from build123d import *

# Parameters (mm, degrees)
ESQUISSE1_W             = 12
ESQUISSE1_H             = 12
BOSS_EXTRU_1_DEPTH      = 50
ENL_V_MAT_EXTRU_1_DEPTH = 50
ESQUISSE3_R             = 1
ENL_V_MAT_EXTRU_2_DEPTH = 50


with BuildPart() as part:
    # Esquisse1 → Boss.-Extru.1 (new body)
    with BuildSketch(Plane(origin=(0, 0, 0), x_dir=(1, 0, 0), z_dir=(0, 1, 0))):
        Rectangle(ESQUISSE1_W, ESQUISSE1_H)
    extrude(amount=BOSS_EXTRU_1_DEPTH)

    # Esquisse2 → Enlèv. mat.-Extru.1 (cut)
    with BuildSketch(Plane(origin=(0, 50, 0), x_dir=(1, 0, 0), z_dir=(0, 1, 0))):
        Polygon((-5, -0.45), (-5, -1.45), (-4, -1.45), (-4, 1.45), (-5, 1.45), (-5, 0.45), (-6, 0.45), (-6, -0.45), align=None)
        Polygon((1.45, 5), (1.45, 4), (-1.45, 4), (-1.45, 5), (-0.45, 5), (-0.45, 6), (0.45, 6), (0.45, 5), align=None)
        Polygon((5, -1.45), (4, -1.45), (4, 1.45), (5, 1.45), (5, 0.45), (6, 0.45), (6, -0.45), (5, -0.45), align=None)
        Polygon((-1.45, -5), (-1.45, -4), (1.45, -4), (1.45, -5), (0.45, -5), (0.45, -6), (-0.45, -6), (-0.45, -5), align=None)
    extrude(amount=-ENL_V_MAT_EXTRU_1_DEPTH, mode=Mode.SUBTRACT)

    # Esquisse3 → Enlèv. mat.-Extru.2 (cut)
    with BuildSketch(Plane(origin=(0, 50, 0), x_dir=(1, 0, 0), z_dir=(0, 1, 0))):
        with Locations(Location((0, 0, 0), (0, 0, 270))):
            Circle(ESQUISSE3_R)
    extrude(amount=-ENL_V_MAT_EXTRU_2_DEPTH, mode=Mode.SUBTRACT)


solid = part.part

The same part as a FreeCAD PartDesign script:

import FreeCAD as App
import Part
import Sketcher

doc = App.newDocument("Part")
body = doc.addObject("PartDesign::Body", "Body")

sketch1 = doc.addObject("Sketcher::SketchObject", "Sketch")
body.addObject(sketch1)
sketch1.AttachmentSupport = (doc.XZ_Plane, [""])
sketch1.MapMode = "FlatFace"
sketch1.addGeometry(Part.LineSegment(App.Vector(-6, -6, 0), App.Vector(-6, 6, 0)), False)
sketch1.addGeometry(Part.LineSegment(App.Vector(-6, 6, 0), App.Vector(6, 6, 0)), False)
sketch1.addGeometry(Part.LineSegment(App.Vector(6, 6, 0), App.Vector(6, -6, 0)), False)
sketch1.addGeometry(Part.LineSegment(App.Vector(6, -6, 0), App.Vector(-6, -6, 0)), False)
sketch1.addConstraint(Sketcher.Constraint("Coincident", 0, 2, 1, 1))
sketch1.addConstraint(Sketcher.Constraint("Coincident", 1, 2, 2, 1))
sketch1.addConstraint(Sketcher.Constraint("Coincident", 2, 2, 3, 1))
sketch1.addConstraint(Sketcher.Constraint("Coincident", 3, 2, 0, 1))
sketch1.addConstraint(Sketcher.Constraint("Vertical", 0))
sketch1.addConstraint(Sketcher.Constraint("Horizontal", 1))
sketch1.addConstraint(Sketcher.Constraint("Vertical", 2))
sketch1.addConstraint(Sketcher.Constraint("Horizontal", 3))
sketch1.addConstraint(Sketcher.Constraint("Symmetric", 0, 2, 2, 2, -1, 1))
sketch1.addConstraint(Sketcher.Constraint("Equal", 3, 0))
sketch1.addConstraint(Sketcher.Constraint("DistanceX", 1, 1, 1, 2, 12.0))
pad1 = doc.addObject("PartDesign::Pad", "Pad")
body.addObject(pad1)
pad1.Profile = sketch1
pad1.Length = 50
pad1.Reversed = True

sketch2 = doc.addObject("Sketcher::SketchObject", "Sketch001")
body.addObject(sketch2)
sketch2.AttachmentSupport = (doc.XZ_Plane, [""])
sketch2.MapMode = "FlatFace"
sketch2.AttachmentOffset = App.Placement(App.Vector(0, 0, -50), App.Rotation())
sketch2.addGeometry(Part.LineSegment(App.Vector(-5, 0.5, 0), App.Vector(-5, 1.4, 0)), False)
sketch2.addGeometry(Part.LineSegment(App.Vector(-5, 1.4, 0), App.Vector(-4, 1.4, 0)), False)
sketch2.addGeometry(Part.LineSegment(App.Vector(-4, 1.4, 0), App.Vector(-4, -1.4, 0)), False)
sketch2.addGeometry(Part.LineSegment(App.Vector(-4, -1.4, 0), App.Vector(-5, -1.4, 0)), False)
sketch2.addGeometry(Part.LineSegment(App.Vector(-5, -1.4, 0), App.Vector(-5, -0.5, 0)), False)
sketch2.addGeometry(Part.LineSegment(App.Vector(-5, -0.5, 0), App.Vector(-6, -0.5, 0)), False)
sketch2.addGeometry(Part.LineSegment(App.Vector(-6, -0.5, 0), App.Vector(-6, 0.5, 0)), False)
sketch2.addGeometry(Part.LineSegment(App.Vector(-6, 0.5, 0), App.Vector(-5, 0.5, 0)), False)
sketch2.addGeometry(Part.LineSegment(App.Vector(1.4, -4, 0), App.Vector(1.4, -5, 0)), False)
sketch2.addGeometry(Part.LineSegment(App.Vector(1.4, -5, 0), App.Vector(0.5, -5, 0)), False)
sketch2.addGeometry(Part.LineSegment(App.Vector(0.5, -5, 0), App.Vector(0.5, -6, 0)), False)
sketch2.addGeometry(Part.LineSegment(App.Vector(0.5, -6, 0), App.Vector(-0.5, -6, 0)), False)
sketch2.addGeometry(Part.LineSegment(App.Vector(-0.5, -6, 0), App.Vector(-0.5, -5, 0)), False)
sketch2.addGeometry(Part.LineSegment(App.Vector(-0.5, -5, 0), App.Vector(-1.4, -5, 0)), False)
sketch2.addGeometry(Part.LineSegment(App.Vector(-1.4, -5, 0), App.Vector(-1.4, -4, 0)), False)
sketch2.addGeometry(Part.LineSegment(App.Vector(-1.4, -4, 0), App.Vector(1.4, -4, 0)), False)
sketch2.addGeometry(Part.LineSegment(App.Vector(4, 1.4, 0), App.Vector(5, 1.4, 0)), False)
sketch2.addGeometry(Part.LineSegment(App.Vector(5, 1.4, 0), App.Vector(5, 0.5, 0)), False)
sketch2.addGeometry(Part.LineSegment(App.Vector(5, 0.5, 0), App.Vector(6, 0.5, 0)), False)
sketch2.addGeometry(Part.LineSegment(App.Vector(6, 0.5, 0), App.Vector(6, -0.5, 0)), False)
sketch2.addGeometry(Part.LineSegment(App.Vector(6, -0.5, 0), App.Vector(5, -0.5, 0)), False)
sketch2.addGeometry(Part.LineSegment(App.Vector(5, -0.5, 0), App.Vector(5, -1.4, 0)), False)
sketch2.addGeometry(Part.LineSegment(App.Vector(5, -1.4, 0), App.Vector(4, -1.4, 0)), False)
sketch2.addGeometry(Part.LineSegment(App.Vector(4, -1.4, 0), App.Vector(4, 1.4, 0)), False)
sketch2.addGeometry(Part.LineSegment(App.Vector(-1.4, 4, 0), App.Vector(-1.4, 5, 0)), False)
sketch2.addGeometry(Part.LineSegment(App.Vector(-1.4, 5, 0), App.Vector(-0.5, 5, 0)), False)
sketch2.addGeometry(Part.LineSegment(App.Vector(-0.5, 5, 0), App.Vector(-0.5, 6, 0)), False)
sketch2.addGeometry(Part.LineSegment(App.Vector(-0.5, 6, 0), App.Vector(0.5, 6, 0)), False)
sketch2.addGeometry(Part.LineSegment(App.Vector(0.5, 6, 0), App.Vector(0.5, 5, 0)), False)
sketch2.addGeometry(Part.LineSegment(App.Vector(0.5, 5, 0), App.Vector(1.4, 5, 0)), False)
sketch2.addGeometry(Part.LineSegment(App.Vector(1.4, 5, 0), App.Vector(1.4, 4, 0)), False)
sketch2.addGeometry(Part.LineSegment(App.Vector(1.4, 4, 0), App.Vector(-1.4, 4, 0)), False)
sketch2.addConstraint(Sketcher.Constraint("Coincident", 0, 2, 1, 1))
sketch2.addConstraint(Sketcher.Constraint("Coincident", 1, 2, 2, 1))
sketch2.addConstraint(Sketcher.Constraint("Coincident", 2, 2, 3, 1))
sketch2.addConstraint(Sketcher.Constraint("Coincident", 3, 2, 4, 1))
sketch2.addConstraint(Sketcher.Constraint("Coincident", 4, 2, 5, 1))
sketch2.addConstraint(Sketcher.Constraint("Coincident", 5, 2, 6, 1))
sketch2.addConstraint(Sketcher.Constraint("Coincident", 6, 2, 7, 1))
sketch2.addConstraint(Sketcher.Constraint("Coincident", 7, 2, 0, 1))
sketch2.addConstraint(Sketcher.Constraint("Coincident", 8, 2, 9, 1))
sketch2.addConstraint(Sketcher.Constraint("Coincident", 9, 2, 10, 1))
sketch2.addConstraint(Sketcher.Constraint("Coincident", 10, 2, 11, 1))
sketch2.addConstraint(Sketcher.Constraint("Coincident", 11, 2, 12, 1))
sketch2.addConstraint(Sketcher.Constraint("Coincident", 12, 2, 13, 1))
sketch2.addConstraint(Sketcher.Constraint("Coincident", 13, 2, 14, 1))
sketch2.addConstraint(Sketcher.Constraint("Coincident", 14, 2, 15, 1))
sketch2.addConstraint(Sketcher.Constraint("Coincident", 15, 2, 8, 1))
sketch2.addConstraint(Sketcher.Constraint("Coincident", 16, 2, 17, 1))
sketch2.addConstraint(Sketcher.Constraint("Coincident", 17, 2, 18, 1))
sketch2.addConstraint(Sketcher.Constraint("Coincident", 18, 2, 19, 1))
sketch2.addConstraint(Sketcher.Constraint("Coincident", 19, 2, 20, 1))
sketch2.addConstraint(Sketcher.Constraint("Coincident", 20, 2, 21, 1))
sketch2.addConstraint(Sketcher.Constraint("Coincident", 21, 2, 22, 1))
sketch2.addConstraint(Sketcher.Constraint("Coincident", 22, 2, 23, 1))
sketch2.addConstraint(Sketcher.Constraint("Coincident", 23, 2, 16, 1))
sketch2.addConstraint(Sketcher.Constraint("Coincident", 24, 2, 25, 1))
sketch2.addConstraint(Sketcher.Constraint("Coincident", 25, 2, 26, 1))
sketch2.addConstraint(Sketcher.Constraint("Coincident", 26, 2, 27, 1))
sketch2.addConstraint(Sketcher.Constraint("Coincident", 27, 2, 28, 1))
sketch2.addConstraint(Sketcher.Constraint("Coincident", 28, 2, 29, 1))
sketch2.addConstraint(Sketcher.Constraint("Coincident", 29, 2, 30, 1))
sketch2.addConstraint(Sketcher.Constraint("Coincident", 30, 2, 31, 1))
sketch2.addConstraint(Sketcher.Constraint("Coincident", 31, 2, 24, 1))
sketch2.addConstraint(Sketcher.Constraint("Vertical", 0))
sketch2.addConstraint(Sketcher.Constraint("Horizontal", 1))
sketch2.addConstraint(Sketcher.Constraint("Vertical", 2))
sketch2.addConstraint(Sketcher.Constraint("Horizontal", 3))
sketch2.addConstraint(Sketcher.Constraint("Vertical", 4))
sketch2.addConstraint(Sketcher.Constraint("Horizontal", 5))
sketch2.addConstraint(Sketcher.Constraint("Vertical", 6))
sketch2.addConstraint(Sketcher.Constraint("Horizontal", 7))
sketch2.addConstraint(Sketcher.Constraint("Vertical", 8))
sketch2.addConstraint(Sketcher.Constraint("Horizontal", 9))
sketch2.addConstraint(Sketcher.Constraint("Vertical", 10))
sketch2.addConstraint(Sketcher.Constraint("Horizontal", 11))
sketch2.addConstraint(Sketcher.Constraint("Vertical", 12))
sketch2.addConstraint(Sketcher.Constraint("Horizontal", 13))
sketch2.addConstraint(Sketcher.Constraint("Vertical", 14))
sketch2.addConstraint(Sketcher.Constraint("Horizontal", 15))
sketch2.addConstraint(Sketcher.Constraint("Horizontal", 16))
sketch2.addConstraint(Sketcher.Constraint("Vertical", 17))
sketch2.addConstraint(Sketcher.Constraint("Horizontal", 18))
sketch2.addConstraint(Sketcher.Constraint("Vertical", 19))
sketch2.addConstraint(Sketcher.Constraint("Horizontal", 20))
sketch2.addConstraint(Sketcher.Constraint("Vertical", 21))
sketch2.addConstraint(Sketcher.Constraint("Horizontal", 22))
sketch2.addConstraint(Sketcher.Constraint("Vertical", 23))
sketch2.addConstraint(Sketcher.Constraint("Vertical", 24))
sketch2.addConstraint(Sketcher.Constraint("Horizontal", 25))
sketch2.addConstraint(Sketcher.Constraint("Vertical", 26))
sketch2.addConstraint(Sketcher.Constraint("Horizontal", 27))
sketch2.addConstraint(Sketcher.Constraint("Vertical", 28))
sketch2.addConstraint(Sketcher.Constraint("Horizontal", 29))
sketch2.addConstraint(Sketcher.Constraint("Vertical", 30))
sketch2.addConstraint(Sketcher.Constraint("Horizontal", 31))
sketch2.addConstraint(Sketcher.Constraint("Symmetric", 3, 2, 16, 2, -1, 1))
sketch2.addConstraint(Sketcher.Constraint("Symmetric", 5, 2, 18, 2, -1, 1))
sketch2.addConstraint(Sketcher.Constraint("Symmetric", 7, 2, 20, 2, -1, 1))
sketch2.addConstraint(Sketcher.Constraint("Symmetric", 1, 2, 22, 2, -1, 1))
sketch2.addConstraint(Sketcher.Constraint("Symmetric", 8, 2, 24, 2, -1, 1))
sketch2.addConstraint(Sketcher.Constraint("Symmetric", 10, 2, 26, 2, -1, 1))
sketch2.addConstraint(Sketcher.Constraint("Symmetric", 12, 2, 28, 2, -1, 1))
sketch2.addConstraint(Sketcher.Constraint("Symmetric", 14, 2, 30, 2, -1, 1))
sketch2.addConstraint(Sketcher.Constraint("Symmetric", 9, 2, 12, 2, -2))
sketch2.addConstraint(Sketcher.Constraint("Symmetric", 0, 2, 16, 2, -2))
sketch2.addConstraint(Sketcher.Constraint("Horizontal", 7, 2, 17, 2))
sketch2.addConstraint(Sketcher.Constraint("Vertical", 14, 2, 24, 2))
sketch2.addConstraint(Sketcher.Constraint("Equal", 3, 5))
sketch2.addConstraint(Sketcher.Constraint("Equal", 7, 9))
sketch2.addConstraint(Sketcher.Constraint("Equal", 29, 0))
sketch2.addConstraint(Sketcher.Constraint("Equal", 31, 2))
sketch2.addConstraint(Sketcher.Constraint("Equal", 4, 8))
sketch2.addConstraint(Sketcher.Constraint("Equal", 8, 10))
sketch2.addConstraint(Sketcher.Constraint("DistanceX", 1, 1, 1, 2, 1.0))
sketch2.addConstraint(Sketcher.Constraint("DistanceX", 11, 2, 11, 1, 0.9))
sketch2.addConstraint(Sketcher.Constraint("DistanceX", 0, 2, -1, 1, 5.0))
sketch2.addConstraint(Sketcher.Constraint("DistanceY", 8, 2, -1, 1, 5.0))
pocket1 = doc.addObject("PartDesign::Pocket", "Pocket")
body.addObject(pocket1)
pocket1.Profile = sketch2
pocket1.Length = 50
pocket1.Reversed = True

sketch3 = doc.addObject("Sketcher::SketchObject", "Sketch002")
body.addObject(sketch3)
sketch3.AttachmentSupport = (doc.XZ_Plane, [""])
sketch3.MapMode = "FlatFace"
sketch3.AttachmentOffset = App.Placement(App.Vector(0, 0, -50), App.Rotation())
sketch3.addGeometry(Part.Circle(App.Vector(0, 0, 0), App.Vector(0, 0, 1), 1), False)
sketch3.addConstraint(Sketcher.Constraint("Coincident", 0, 3, -1, 1))
sketch3.addConstraint(Sketcher.Constraint("Diameter", 0, 2.0))
pocket2 = doc.addObject("PartDesign::Pocket", "Pocket001")
body.addObject(pocket2)
pocket2.Profile = sketch3
pocket2.Length = 50
pocket2.Reversed = True

doc.recompute()
